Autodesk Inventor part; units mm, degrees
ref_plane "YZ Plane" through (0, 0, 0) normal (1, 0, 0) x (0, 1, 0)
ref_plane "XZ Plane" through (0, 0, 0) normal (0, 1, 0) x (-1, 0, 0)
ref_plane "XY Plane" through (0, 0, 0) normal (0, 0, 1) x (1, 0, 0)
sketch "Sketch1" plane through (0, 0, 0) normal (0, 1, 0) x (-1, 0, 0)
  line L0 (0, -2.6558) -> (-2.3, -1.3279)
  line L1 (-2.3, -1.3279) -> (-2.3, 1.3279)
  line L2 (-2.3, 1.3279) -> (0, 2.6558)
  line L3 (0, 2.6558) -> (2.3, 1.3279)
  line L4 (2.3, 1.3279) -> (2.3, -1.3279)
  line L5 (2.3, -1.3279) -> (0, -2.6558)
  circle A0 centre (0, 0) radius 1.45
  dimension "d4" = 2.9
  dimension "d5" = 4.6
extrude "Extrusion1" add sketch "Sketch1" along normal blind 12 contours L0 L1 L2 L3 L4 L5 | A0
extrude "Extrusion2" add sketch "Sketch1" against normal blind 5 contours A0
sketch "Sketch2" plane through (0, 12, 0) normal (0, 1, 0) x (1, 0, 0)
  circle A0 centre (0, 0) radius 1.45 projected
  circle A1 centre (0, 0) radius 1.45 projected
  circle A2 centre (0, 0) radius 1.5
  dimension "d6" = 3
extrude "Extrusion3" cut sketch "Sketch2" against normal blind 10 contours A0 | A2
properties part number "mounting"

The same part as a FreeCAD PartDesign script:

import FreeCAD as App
import Part
import Sketcher
Q = App.Units.Quantity

doc = App.newDocument("Part")
params = doc.addObject("Spreadsheet::Sheet", "Params")
for row, (alias, value) in enumerate([
    ("pad1_length", "12 mm"),
    ("sketch2_diameter", "2.9 mm"),
    ("pad2_length", "5 mm"),
    ("sketch3_diameter", "3 mm"),
    ("pocket1_length", "10 mm"),
], start=1):
    params.set(f"A{row}", alias)
    params.set(f"B{row}", "=" + value)
    params.setAlias(f"B{row}", alias)

body = doc.addObject("PartDesign::Body", "Body")

sketch1 = body.newObject("Sketcher::SketchObject", "Sketch")
sketch1.AttachmentSupport = (doc.getObject("XZ_Plane"), [""])
sketch1.MapMode = "FlatFace"
sketch1.addGeometry(Part.LineSegment(App.Vector(2.3, -1.3279, 0), App.Vector(0, -2.6558, 0)), False)
sketch1.addGeometry(Part.LineSegment(App.Vector(0, -2.6558, 0), App.Vector(-2.3, -1.3279, 0)), False)
sketch1.addGeometry(Part.LineSegment(App.Vector(-2.3, -1.3279, 0), App.Vector(-2.3, 1.3279, 0)), False)
sketch1.addGeometry(Part.LineSegment(App.Vector(-2.3, 1.3279, 0), App.Vector(0, 2.6558, 0)), False)
sketch1.addGeometry(Part.LineSegment(App.Vector(0, 2.6558, 0), App.Vector(2.3, 1.3279, 0)), False)
sketch1.addGeometry(Part.LineSegment(App.Vector(2.3, 1.3279, 0), App.Vector(2.3, -1.3279, 0)), False)
sketch1.addConstraint(Sketcher.Constraint("Coincident", 0, 2, 1, 1))
sketch1.addConstraint(Sketcher.Constraint("Coincident", 1, 2, 2, 1))
sketch1.addConstraint(Sketcher.Constraint("Coincident", 2, 2, 3, 1))
sketch1.addConstraint(Sketcher.Constraint("Coincident", 3, 2, 4, 1))
sketch1.addConstraint(Sketcher.Constraint("Coincident", 4, 2, 5, 1))
sketch1.addConstraint(Sketcher.Constraint("Coincident", 5, 2, 0, 1))
sketch1.addConstraint(Sketcher.Constraint("Vertical", 2))
sketch1.addConstraint(Sketcher.Constraint("Vertical", 5))
sketch1.addConstraint(Sketcher.Constraint("Symmetric", 0, 2, 3, 2, -1, 1))
sketch1.addConstraint(Sketcher.Constraint("Symmetric", 1, 2, 4, 2, -1, 1))
sketch1.addConstraint(Sketcher.Constraint("PointOnObject", 0, 2, -2))
sketch1.addConstraint(Sketcher.Constraint("Parallel", 0, 3))
sketch1.addConstraint(Sketcher.Constraint("Horizontal", 2, 2, 4, 2))
sketch1.addConstraint(Sketcher.Constraint("DistanceX", 2, 2, 4, 2, 4.6))
sketch1.addConstraint(Sketcher.Constraint("Angle", 0, Q("-150 deg")))
sketch1.addConstraint(Sketcher.Constraint("DistanceY", 2, 1, 2, 2, 2.6558))
pad1 = body.newObject("PartDesign::Pad", "Pad")
pad1.Profile = sketch1
pad1.setExpression("Length", "Params.pad1_length")
pad1.Reversed = True

sketch2 = body.newObject("Sketcher::SketchObject", "Sketch001")
sketch2.AttachmentSupport = (doc.getObject("XZ_Plane"), [""])
sketch2.MapMode = "FlatFace"
sketch2.addGeometry(Part.Circle(App.Vector(0, 0, 0), App.Vector(0, 0, 1), 1.45), False)
sketch2.addConstraint(Sketcher.Constraint("Coincident", 0, 3, -1, 1))
sketch2.addConstraint(Sketcher.Constraint("Diameter", 0, 2.9))
sketch2.setExpression("Constraints[1]", "Params.sketch2_diameter")
pad2 = body.newObject("PartDesign::Pad", "Pad001")
pad2.Profile = sketch2
pad2.setExpression("Length", "Params.pad2_length")

sketch3 = body.newObject("Sketcher::SketchObject", "Sketch002")
sketch3.AttachmentSupport = (doc.getObject("XZ_Plane"), [""])
sketch3.MapMode = "FlatFace"
sketch3.AttachmentOffset = App.Placement(App.Vector(0, 0, -12), App.Rotation())
sketch3.addGeometry(Part.Circle(App.Vector(0, 0, 0), App.Vector(0, 0, 1), 1.5), False)
sketch3.addConstraint(Sketcher.Constraint("Coincident", 0, 3, -1, 1))
sketch3.addConstraint(Sketcher.Constraint("Diameter", 0, 3.0))
sketch3.setExpression("Constraints[1]", "Params.sketch3_diameter")
pocket1 = body.newObject("PartDesign::Pocket", "Pocket")
pocket1.Profile = sketch3
pocket1.setExpression("Length", "Params.pocket1_length")
pocket1.Reversed = True

doc.recompute()
